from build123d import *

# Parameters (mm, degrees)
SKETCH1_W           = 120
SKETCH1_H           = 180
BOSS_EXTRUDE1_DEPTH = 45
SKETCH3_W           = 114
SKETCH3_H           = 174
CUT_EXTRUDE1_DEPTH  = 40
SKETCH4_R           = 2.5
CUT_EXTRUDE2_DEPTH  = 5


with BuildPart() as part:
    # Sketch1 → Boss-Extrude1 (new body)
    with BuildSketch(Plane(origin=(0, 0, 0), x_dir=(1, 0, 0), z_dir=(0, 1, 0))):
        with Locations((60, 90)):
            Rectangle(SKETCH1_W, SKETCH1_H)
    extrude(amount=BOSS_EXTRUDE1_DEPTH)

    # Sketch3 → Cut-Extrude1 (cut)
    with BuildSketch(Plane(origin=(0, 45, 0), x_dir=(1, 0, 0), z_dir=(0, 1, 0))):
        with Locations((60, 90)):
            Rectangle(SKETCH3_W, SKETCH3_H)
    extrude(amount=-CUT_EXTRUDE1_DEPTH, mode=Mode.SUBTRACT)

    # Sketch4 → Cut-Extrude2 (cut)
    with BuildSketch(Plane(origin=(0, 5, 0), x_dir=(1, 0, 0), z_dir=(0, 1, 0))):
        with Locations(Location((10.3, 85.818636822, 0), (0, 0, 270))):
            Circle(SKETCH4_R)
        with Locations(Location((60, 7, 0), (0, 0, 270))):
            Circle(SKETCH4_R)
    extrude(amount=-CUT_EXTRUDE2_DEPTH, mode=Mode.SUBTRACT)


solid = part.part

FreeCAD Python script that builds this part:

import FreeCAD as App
import Part
import Sketcher


def add_polygon(sketch, points):
    """Adds a closed chain of lines whose ends are joined by coincident constraints."""
    first, n = sketch.GeometryCount, len(points)
    for a, b in zip(points, points[1:] + points[:1]):
        sketch.addGeometry(Part.LineSegment(App.Vector(*a, 0), App.Vector(*b, 0)), False)
    for i in range(n):
        sketch.addConstraint(Sketcher.Constraint("Coincident", first + i, 2, first + (i + 1) % n, 1))

doc = App.newDocument("Part")
body = doc.addObject("PartDesign::Body", "Body")

sketch1 = doc.addObject("Sketcher::SketchObject", "Sketch")
body.addObject(sketch1)
sketch1.AttachmentSupport = (doc.XZ_Plane, [""])
sketch1.MapMode = "FlatFace"
add_polygon(sketch1, [(0, -180), (0, 0), (120, 0), (120, -180)])
sketch1.addConstraint([
    Sketcher.Constraint("Vertical", 0),
    Sketcher.Constraint("Horizontal", 1),
    Sketcher.Constraint("Vertical", 2),
    Sketcher.Constraint("Horizontal", 3),
    Sketcher.Constraint("Coincident", 0, 2, -1, 1),
    Sketcher.Constraint("DistanceX", 1, 1, 1, 2, 120.0),
    Sketcher.Constraint("DistanceY", 0, 1, 0, 2, 180.0),
])
pad1 = doc.addObject("PartDesign::Pad", "Pad")
body.addObject(pad1)
pad1.Profile = sketch1
pad1.Length = 45
pad1.Reversed = True

sketch2 = doc.addObject("Sketcher::SketchObject", "Sketch001")
body.addObject(sketch2)
sketch2.AttachmentSupport = (doc.XZ_Plane, [""])
sketch2.MapMode = "FlatFace"
sketch2.AttachmentOffset = App.Placement(App.Vector(0, 0, -45), App.Rotation())
add_polygon(sketch2, [(3, -177), (3, -3), (117, -3), (117, -177)])
sketch2.addConstraint([
    Sketcher.Constraint("Vertical", 0),
    Sketcher.Constraint("Horizontal", 1),
    Sketcher.Constraint("Vertical", 2),
    Sketcher.Constraint("Horizontal", 3),
    Sketcher.Constraint("DistanceX", 1, 1, 1, 2, 114.0),
    Sketcher.Constraint("DistanceY", 0, 1, 0, 2, 174.0),
    Sketcher.Constraint("DistanceX", -1, 1, 0, 2, 3.0),
    Sketcher.Constraint("DistanceY", 0, 2, -1, 1, 3.0),
])
pocket1 = doc.addObject("PartDesign::Pocket", "Pocket")
body.addObject(pocket1)
pocket1.Profile = sketch2
pocket1.Length = 40
pocket1.Reversed = True

sketch3 = doc.addObject("Sketcher::SketchObject", "Sketch002")
body.addObject(sketch3)
sketch3.AttachmentSupport = (doc.XZ_Plane, [""])
sketch3.MapMode = "FlatFace"
sketch3.AttachmentOffset = App.Placement(App.Vector(0, 0, -5), App.Rotation())
sketch3.addGeometry([
    Part.Circle(App.Vector(10.3, -85.8, 0), App.Vector(0, 0, 1), 2.5),
    Part.Circle(App.Vector(60, -7, 0), App.Vector(0, 0, 1), 2.5),
], False)
sketch3.addConstraint([
    Sketcher.Constraint("Equal", 0, 1),
    Sketcher.Constraint("Diameter", 0, 5.0),
    Sketcher.Constraint("DistanceX", -1, 1, 1, 3, 60.0),
    Sketcher.Constraint("DistanceY", 1, 3, -1, 1, 7.0),
    Sketcher.Constraint("DistanceX", -1, 1, 0, 3, 10.3),
    Sketcher.Constraint("DistanceY", 0, 3, -1, 1, 85.818637),
])
pocket2 = doc.addObject("PartDesign::Pocket", "Pocket001")
body.addObject(pocket2)
pocket2.Profile = sketch3
pocket2.Length = 5
pocket2.Reversed = True

doc.recompute()
